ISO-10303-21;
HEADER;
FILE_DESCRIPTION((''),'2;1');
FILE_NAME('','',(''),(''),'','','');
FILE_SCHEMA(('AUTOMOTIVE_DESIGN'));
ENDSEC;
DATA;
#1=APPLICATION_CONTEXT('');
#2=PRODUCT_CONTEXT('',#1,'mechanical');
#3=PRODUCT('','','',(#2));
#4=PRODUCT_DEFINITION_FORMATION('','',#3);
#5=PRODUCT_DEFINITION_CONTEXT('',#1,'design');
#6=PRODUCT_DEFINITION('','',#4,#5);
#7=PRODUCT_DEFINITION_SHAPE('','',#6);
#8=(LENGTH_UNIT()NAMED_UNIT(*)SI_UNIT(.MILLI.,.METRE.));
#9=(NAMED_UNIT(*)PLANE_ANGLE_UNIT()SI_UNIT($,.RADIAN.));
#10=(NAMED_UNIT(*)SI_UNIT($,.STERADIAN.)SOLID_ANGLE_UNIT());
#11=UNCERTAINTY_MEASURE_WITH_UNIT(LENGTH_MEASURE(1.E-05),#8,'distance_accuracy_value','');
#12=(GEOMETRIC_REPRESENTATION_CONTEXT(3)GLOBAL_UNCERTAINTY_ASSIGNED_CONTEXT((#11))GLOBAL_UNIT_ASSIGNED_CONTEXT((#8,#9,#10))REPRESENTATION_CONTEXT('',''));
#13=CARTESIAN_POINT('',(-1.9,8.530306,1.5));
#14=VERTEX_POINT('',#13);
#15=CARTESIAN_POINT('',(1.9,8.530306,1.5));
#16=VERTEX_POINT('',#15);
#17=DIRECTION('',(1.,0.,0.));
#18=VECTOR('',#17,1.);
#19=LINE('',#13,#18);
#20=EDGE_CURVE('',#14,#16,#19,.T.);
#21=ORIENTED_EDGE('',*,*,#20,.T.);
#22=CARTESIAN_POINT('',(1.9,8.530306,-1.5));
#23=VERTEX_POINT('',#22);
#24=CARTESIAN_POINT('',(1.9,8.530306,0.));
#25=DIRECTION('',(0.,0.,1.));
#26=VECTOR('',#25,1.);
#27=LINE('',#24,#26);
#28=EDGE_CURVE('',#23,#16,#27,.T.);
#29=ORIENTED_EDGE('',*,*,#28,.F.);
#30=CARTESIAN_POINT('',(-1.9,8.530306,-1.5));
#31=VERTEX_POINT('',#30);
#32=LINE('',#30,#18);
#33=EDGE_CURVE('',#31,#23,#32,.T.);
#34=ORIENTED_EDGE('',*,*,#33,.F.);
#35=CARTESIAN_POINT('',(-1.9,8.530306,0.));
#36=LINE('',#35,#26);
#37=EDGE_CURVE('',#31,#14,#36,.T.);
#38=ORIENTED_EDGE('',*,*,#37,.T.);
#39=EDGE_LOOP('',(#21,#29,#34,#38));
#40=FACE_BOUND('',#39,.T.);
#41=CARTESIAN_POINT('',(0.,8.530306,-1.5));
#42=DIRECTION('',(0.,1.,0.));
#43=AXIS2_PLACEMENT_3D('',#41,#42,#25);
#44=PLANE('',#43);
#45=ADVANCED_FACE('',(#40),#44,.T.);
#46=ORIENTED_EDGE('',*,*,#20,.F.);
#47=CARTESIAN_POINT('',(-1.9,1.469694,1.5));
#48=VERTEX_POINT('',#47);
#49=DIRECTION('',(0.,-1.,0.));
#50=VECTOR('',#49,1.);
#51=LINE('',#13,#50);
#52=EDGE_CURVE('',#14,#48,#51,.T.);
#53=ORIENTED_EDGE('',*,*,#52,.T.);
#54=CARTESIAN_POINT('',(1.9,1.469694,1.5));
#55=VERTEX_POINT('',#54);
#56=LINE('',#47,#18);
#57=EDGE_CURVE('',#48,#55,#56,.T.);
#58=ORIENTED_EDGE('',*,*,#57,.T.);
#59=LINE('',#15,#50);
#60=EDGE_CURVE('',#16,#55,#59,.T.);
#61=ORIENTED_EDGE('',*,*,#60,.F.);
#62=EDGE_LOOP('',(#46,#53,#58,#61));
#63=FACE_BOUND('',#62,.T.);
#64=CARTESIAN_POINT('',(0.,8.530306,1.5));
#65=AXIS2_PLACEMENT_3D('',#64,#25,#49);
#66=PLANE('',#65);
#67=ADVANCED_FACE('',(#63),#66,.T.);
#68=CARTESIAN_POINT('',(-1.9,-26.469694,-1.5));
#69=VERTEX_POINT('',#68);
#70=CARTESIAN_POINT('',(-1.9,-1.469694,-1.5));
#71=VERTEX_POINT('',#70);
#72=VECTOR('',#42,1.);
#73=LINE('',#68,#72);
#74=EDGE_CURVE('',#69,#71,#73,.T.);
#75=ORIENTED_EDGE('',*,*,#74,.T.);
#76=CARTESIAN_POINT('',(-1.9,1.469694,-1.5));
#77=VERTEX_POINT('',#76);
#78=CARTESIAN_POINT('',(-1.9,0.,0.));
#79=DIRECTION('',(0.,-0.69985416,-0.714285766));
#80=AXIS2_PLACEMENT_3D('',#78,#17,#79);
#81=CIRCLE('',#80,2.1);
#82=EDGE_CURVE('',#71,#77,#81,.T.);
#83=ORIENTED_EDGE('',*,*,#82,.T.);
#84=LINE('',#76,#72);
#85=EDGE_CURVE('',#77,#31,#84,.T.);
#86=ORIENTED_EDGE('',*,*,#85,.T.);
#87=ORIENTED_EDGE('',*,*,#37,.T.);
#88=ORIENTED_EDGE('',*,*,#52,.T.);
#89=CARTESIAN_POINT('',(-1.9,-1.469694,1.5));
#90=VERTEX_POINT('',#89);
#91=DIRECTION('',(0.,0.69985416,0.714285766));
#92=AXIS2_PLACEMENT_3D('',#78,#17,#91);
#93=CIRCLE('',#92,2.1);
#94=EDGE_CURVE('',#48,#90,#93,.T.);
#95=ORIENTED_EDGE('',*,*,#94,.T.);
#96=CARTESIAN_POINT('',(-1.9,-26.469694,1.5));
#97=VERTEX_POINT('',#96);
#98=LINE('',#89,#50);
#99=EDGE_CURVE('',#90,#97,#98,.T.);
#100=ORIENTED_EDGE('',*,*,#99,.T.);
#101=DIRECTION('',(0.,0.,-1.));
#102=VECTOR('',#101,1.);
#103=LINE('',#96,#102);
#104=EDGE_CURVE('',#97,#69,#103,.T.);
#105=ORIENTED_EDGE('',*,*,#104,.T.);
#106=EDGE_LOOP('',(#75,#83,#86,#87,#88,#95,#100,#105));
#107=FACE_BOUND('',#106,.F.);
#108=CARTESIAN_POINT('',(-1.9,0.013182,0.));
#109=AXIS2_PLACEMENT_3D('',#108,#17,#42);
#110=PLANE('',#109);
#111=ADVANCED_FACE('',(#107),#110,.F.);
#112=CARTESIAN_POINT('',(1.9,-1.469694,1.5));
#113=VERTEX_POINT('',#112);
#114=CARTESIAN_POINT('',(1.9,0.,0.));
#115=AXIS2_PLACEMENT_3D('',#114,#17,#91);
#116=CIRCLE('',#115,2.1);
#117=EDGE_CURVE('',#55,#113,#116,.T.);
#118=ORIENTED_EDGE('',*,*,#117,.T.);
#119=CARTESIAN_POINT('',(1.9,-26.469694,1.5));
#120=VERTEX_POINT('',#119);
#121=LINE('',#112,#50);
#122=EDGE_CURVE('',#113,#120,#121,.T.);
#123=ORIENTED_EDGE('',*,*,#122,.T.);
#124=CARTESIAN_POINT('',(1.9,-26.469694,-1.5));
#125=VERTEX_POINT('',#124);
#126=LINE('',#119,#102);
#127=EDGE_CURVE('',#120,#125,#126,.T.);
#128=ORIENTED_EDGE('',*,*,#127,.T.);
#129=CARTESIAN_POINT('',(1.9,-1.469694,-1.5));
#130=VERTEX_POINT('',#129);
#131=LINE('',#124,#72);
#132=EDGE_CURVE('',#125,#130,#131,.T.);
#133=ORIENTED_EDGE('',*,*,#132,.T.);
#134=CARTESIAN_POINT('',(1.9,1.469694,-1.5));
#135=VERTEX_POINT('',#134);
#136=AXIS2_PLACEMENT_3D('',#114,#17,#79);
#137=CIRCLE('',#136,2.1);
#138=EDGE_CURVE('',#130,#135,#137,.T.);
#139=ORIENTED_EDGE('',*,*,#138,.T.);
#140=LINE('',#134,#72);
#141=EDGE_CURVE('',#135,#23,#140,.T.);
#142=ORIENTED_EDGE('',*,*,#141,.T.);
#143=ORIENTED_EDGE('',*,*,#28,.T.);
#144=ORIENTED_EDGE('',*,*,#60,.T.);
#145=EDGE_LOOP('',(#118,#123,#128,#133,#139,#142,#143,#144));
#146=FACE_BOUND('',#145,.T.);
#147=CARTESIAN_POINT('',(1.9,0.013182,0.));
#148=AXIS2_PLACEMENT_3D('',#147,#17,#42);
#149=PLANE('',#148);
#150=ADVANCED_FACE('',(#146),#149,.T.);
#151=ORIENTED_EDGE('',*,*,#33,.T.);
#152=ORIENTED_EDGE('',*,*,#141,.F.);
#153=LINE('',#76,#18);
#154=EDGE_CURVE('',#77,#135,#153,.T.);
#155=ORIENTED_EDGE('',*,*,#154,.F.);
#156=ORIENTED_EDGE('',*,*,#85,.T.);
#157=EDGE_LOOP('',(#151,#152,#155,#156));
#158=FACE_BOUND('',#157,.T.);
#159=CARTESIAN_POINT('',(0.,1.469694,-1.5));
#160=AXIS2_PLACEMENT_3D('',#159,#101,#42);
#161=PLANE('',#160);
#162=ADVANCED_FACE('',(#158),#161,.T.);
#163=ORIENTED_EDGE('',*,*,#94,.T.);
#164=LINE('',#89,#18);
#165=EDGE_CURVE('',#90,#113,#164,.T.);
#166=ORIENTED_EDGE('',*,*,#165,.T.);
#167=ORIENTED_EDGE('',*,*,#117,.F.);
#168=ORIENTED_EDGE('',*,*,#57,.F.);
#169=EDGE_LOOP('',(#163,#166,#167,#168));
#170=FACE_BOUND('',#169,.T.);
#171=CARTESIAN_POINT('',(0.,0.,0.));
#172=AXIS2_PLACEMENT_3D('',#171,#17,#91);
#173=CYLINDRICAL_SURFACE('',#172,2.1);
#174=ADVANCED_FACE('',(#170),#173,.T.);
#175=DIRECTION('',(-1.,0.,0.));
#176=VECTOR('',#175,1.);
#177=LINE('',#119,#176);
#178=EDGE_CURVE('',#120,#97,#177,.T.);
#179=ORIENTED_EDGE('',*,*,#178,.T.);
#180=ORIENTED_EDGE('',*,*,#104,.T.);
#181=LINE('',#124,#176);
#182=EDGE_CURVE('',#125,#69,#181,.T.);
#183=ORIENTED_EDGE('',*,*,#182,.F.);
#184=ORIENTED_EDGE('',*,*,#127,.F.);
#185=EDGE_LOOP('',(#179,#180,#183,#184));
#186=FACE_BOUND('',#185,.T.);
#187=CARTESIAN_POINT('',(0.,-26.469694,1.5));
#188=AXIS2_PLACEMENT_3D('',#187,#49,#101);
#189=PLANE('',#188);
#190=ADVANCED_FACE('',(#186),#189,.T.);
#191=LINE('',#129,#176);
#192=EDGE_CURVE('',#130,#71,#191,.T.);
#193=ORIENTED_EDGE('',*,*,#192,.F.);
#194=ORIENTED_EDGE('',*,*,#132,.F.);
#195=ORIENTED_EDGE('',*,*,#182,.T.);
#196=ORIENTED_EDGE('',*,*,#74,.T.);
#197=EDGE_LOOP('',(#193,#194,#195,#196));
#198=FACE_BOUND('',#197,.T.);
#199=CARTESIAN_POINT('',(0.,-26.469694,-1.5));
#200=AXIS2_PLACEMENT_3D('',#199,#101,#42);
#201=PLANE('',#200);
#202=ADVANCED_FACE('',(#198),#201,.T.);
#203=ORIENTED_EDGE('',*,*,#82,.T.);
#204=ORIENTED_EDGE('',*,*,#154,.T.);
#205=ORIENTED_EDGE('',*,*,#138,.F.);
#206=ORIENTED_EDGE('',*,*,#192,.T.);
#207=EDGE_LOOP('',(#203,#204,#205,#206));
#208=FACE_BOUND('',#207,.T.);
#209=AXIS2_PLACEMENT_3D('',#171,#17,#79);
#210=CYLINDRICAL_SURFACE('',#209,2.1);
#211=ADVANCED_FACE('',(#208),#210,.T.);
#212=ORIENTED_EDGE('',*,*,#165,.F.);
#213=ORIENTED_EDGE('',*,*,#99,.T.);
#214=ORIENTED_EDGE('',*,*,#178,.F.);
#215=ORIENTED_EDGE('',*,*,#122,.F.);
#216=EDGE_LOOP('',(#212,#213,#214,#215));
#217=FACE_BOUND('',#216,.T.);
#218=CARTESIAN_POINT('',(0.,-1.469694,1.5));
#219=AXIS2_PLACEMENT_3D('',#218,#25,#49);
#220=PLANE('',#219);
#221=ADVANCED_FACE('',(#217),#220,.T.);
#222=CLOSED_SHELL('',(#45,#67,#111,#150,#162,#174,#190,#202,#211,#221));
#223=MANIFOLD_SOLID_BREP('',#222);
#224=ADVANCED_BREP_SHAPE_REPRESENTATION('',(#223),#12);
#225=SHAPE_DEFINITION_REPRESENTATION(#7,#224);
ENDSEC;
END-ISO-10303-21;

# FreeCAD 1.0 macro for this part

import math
import FreeCAD as App
import Part
import Sketcher

V = App.Vector

doc = App.newDocument("Part")
body = doc.addObject("PartDesign::Body", "Body")

# Sketch on YZ plane
sketch1 = body.newObject("Sketcher::SketchObject", "Sketch")
sketch1.AttachmentSupport = (doc.getObject("YZ_Plane"), [""])
sketch1.MapMode = "FlatFace"
sketch1.addGeometry([
    Part.ArcOfCircle(Part.Circle(V(0, 0, 0), V(0, 0, 1), 2.1), math.radians(-134), math.radians(-46)),  # 0
    Part.LineSegment(V(1.5, -1.5, 0), V(8.5, -1.5, 0)),  # 1
    Part.LineSegment(V(8.5, -1.5, 0), V(8.5, 1.5, 0)),  # 2
    Part.LineSegment(V(8.5, 1.5, 0), V(1.5, 1.5, 0)),  # 3
    Part.ArcOfCircle(Part.Circle(V(0, 0, 0), V(0, 0, 1), 2.1), math.radians(46), math.radians(134)),  # 4
    Part.LineSegment(V(-1.5, 1.5, 0), V(-26.5, 1.5, 0)),  # 5
    Part.LineSegment(V(-26.5, 1.5, 0), V(-26.5, -1.5, 0)),  # 6
    Part.LineSegment(V(-26.5, -1.5, 0), V(-1.5, -1.5, 0)),  # 7
], False)
sketch1.addConstraint([
    Sketcher.Constraint("Coincident", 0, 2, 1, 1),
    Sketcher.Constraint("Coincident", 1, 2, 2, 1),
    Sketcher.Constraint("Coincident", 2, 2, 3, 1),
    Sketcher.Constraint("Coincident", 3, 2, 4, 1),
    Sketcher.Constraint("Coincident", 4, 2, 5, 1),
    Sketcher.Constraint("Coincident", 5, 2, 6, 1),
    Sketcher.Constraint("Coincident", 6, 2, 7, 1),
    Sketcher.Constraint("Coincident", 7, 2, 0, 1),
    Sketcher.Constraint("Horizontal", 1),
    Sketcher.Constraint("Vertical", 2),
    Sketcher.Constraint("Horizontal", 3),
    Sketcher.Constraint("Horizontal", 5),
    Sketcher.Constraint("Vertical", 6),
    Sketcher.Constraint("Horizontal", 7),
    Sketcher.Constraint("Coincident", 0, 3, -1, 1),
    Sketcher.Constraint("Coincident", 4, 3, -1, 1),
    Sketcher.Constraint("Equal", 0, 4),
    Sketcher.Constraint("Horizontal", 3, 2, 4, 2),
    Sketcher.Constraint("Horizontal", 1, 2, 6, 2),
    Sketcher.Constraint("Vertical", 0, 2, 3, 2),
    Sketcher.Constraint("Radius", 0, 2.1),
    Sketcher.Constraint("DistanceX", 5, 2, 5, 1, 25.0),
    Sketcher.Constraint("DistanceY", 2, 1, 2, 2, 3.0),
    Sketcher.Constraint("DistanceX", 4, 2, 2, 2, 10.0),
])
pad1 = body.newObject("PartDesign::Pad", "Pad")
pad1.Profile = sketch1
pad1.Type = "TwoLengths"
pad1.Length = 1.9
pad1.Length2 = 1.9

doc.recompute()
